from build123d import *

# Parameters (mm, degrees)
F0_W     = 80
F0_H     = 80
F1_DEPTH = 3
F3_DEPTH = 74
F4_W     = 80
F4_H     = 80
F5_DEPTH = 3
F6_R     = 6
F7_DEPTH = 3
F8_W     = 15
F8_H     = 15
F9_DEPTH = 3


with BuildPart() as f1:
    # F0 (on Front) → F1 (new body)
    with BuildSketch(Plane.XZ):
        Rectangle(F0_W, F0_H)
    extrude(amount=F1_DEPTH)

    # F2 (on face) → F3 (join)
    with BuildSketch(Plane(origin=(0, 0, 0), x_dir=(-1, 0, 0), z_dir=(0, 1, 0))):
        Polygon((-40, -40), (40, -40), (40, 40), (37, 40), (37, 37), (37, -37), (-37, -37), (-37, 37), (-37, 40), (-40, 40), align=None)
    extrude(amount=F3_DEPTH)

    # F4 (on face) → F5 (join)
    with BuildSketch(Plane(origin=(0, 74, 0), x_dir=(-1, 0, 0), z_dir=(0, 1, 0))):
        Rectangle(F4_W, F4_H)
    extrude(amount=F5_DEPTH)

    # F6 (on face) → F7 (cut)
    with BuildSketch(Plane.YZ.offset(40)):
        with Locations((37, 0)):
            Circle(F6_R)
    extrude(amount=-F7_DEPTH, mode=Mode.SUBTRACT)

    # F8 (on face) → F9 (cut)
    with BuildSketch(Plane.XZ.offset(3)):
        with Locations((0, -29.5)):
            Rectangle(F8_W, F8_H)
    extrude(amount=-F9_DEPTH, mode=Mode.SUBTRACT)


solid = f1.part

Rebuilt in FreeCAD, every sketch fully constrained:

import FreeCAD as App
import Part
import Sketcher
from FreeCAD import Vector
Q = App.Units.Quantity


def add_polygon(sketch, points):
    """Adds a closed chain of lines whose ends are joined by coincident constraints."""
    first, n = sketch.GeometryCount, len(points)
    for a, b in zip(points, points[1:] + points[:1]):
        sketch.addGeometry(Part.LineSegment(App.Vector(*a, 0), App.Vector(*b, 0)), False)
    for i in range(n):
        sketch.addConstraint(Sketcher.Constraint("Coincident", first + i, 2, first + (i + 1) % n, 1))

doc = App.newDocument("Part")
body = doc.addObject("PartDesign::Body", "Body")

sketch1 = body.newObject("Sketcher::SketchObject", "Sketch")
sketch1.AttachmentSupport = (doc.getObject("XZ_Plane"), [""])
sketch1.MapMode = "FlatFace"
add_polygon(sketch1, [(-40, 40), (-40, -40), (40, -40), (40, 40)])
sketch1.addConstraint(Sketcher.Constraint("Vertical", 0))
sketch1.addConstraint(Sketcher.Constraint("Horizontal", 1))
sketch1.addConstraint(Sketcher.Constraint("Vertical", 2))
sketch1.addConstraint(Sketcher.Constraint("Horizontal", 3))
sketch1.addConstraint(Sketcher.Constraint("Symmetric", 0, 2, 2, 2, -1, 1))
sketch1.addConstraint(Sketcher.Constraint("Equal", 3, 0))
sketch1.addConstraint(Sketcher.Constraint("DistanceX", 1, 1, 1, 2, Q("80 mm")))
pad1 = body.newObject("PartDesign::Pad", "Pad")
pad1.Profile = sketch1
pad1.Length = 3

sketch2 = body.newObject("Sketcher::SketchObject", "Sketch001")
sketch2.AttachmentSupport = (doc.getObject("XZ_Plane"), [""])
sketch2.MapMode = "FlatFace"
add_polygon(sketch2, [(40, -40), (-40, -40), (-40, 40), (-37, 40), (-37, -37), (37, -37), (37, 40), (40, 40)])
sketch2.addConstraint(Sketcher.Constraint("Horizontal", 0))
sketch2.addConstraint(Sketcher.Constraint("Vertical", 1))
sketch2.addConstraint(Sketcher.Constraint("Horizontal", 2))
sketch2.addConstraint(Sketcher.Constraint("Vertical", 3))
sketch2.addConstraint(Sketcher.Constraint("Horizontal", 4))
sketch2.addConstraint(Sketcher.Constraint("Vertical", 5))
sketch2.addConstraint(Sketcher.Constraint("Horizontal", 6))
sketch2.addConstraint(Sketcher.Constraint("Vertical", 7))
sketch2.addConstraint(Sketcher.Constraint("Symmetric", 0, 2, 6, 2, -1, 1))
sketch2.addConstraint(Sketcher.Constraint("Symmetric", 2, 2, 5, 2, -2))
sketch2.addConstraint(Sketcher.Constraint("Equal", 0, 1))
sketch2.addConstraint(Sketcher.Constraint("DistanceX", 0, 2, 0, 1, Q("80 mm")))
sketch2.addConstraint(Sketcher.Constraint("DistanceX", 2, 1, 2, 2, Q("3 mm")))
sketch2.addConstraint(Sketcher.Constraint("DistanceY", 3, 2, 3, 1, Q("77 mm")))
pad2 = body.newObject("PartDesign::Pad", "Pad001")
pad2.Profile = sketch2
pad2.Length = 74
pad2.Reversed = True

sketch3 = body.newObject("Sketcher::SketchObject", "Sketch002")
sketch3.AttachmentSupport = (doc.getObject("XZ_Plane"), [""])
sketch3.MapMode = "FlatFace"
sketch3.AttachmentOffset = App.Placement(Vector(0, 0, -74), App.Rotation())
add_polygon(sketch3, [(40, 40), (40, -40), (-40, -40), (-40, 40)])
sketch3.addConstraint(Sketcher.Constraint("Vertical", 0))
sketch3.addConstraint(Sketcher.Constraint("Horizontal", 1))
sketch3.addConstraint(Sketcher.Constraint("Vertical", 2))
sketch3.addConstraint(Sketcher.Constraint("Horizontal", 3))
sketch3.addConstraint(Sketcher.Constraint("Symmetric", 0, 2, 2, 2, -1, 1))
sketch3.addConstraint(Sketcher.Constraint("Equal", 3, 0))
sketch3.addConstraint(Sketcher.Constraint("DistanceX", 1, 2, 1, 1, Q("80 mm")))
pad3 = body.newObject("PartDesign::Pad", "Pad002")
pad3.Profile = sketch3
pad3.Length = 3
pad3.Reversed = True

sketch4 = body.newObject("Sketcher::SketchObject", "Sketch003")
sketch4.AttachmentSupport = (doc.getObject("YZ_Plane"), [""])
sketch4.MapMode = "FlatFace"
sketch4.AttachmentOffset = App.Placement(Vector(0, 0, 40), App.Rotation())
sketch4.addGeometry(Part.Circle(Vector(37, 0, 0), Vector(0, 0, 1), 6), False)
sketch4.addConstraint(Sketcher.Constraint("PointOnObject", 0, 3, -1))
sketch4.addConstraint(Sketcher.Constraint("Diameter", 0, Q("12 mm")))
sketch4.addConstraint(Sketcher.Constraint("DistanceX", -1, 1, 0, 3, Q("37 mm")))
pocket1 = body.newObject("PartDesign::Pocket", "Pocket")
pocket1.Profile = sketch4
pocket1.Length = 3

sketch5 = body.newObject("Sketcher::SketchObject", "Sketch004")
sketch5.AttachmentSupport = (doc.getObject("XZ_Plane"), [""])
sketch5.MapMode = "FlatFace"
sketch5.AttachmentOffset = App.Placement(Vector(0, 0, 3), App.Rotation())
add_polygon(sketch5, [(-8, -22), (-8, -37), (8, -37), (8, -22)])
sketch5.addConstraint(Sketcher.Constraint("Vertical", 0))
sketch5.addConstraint(Sketcher.Constraint("Horizontal", 1))
sketch5.addConstraint(Sketcher.Constraint("Vertical", 2))
sketch5.addConstraint(Sketcher.Constraint("Horizontal", 3))
sketch5.addConstraint(Sketcher.Constraint("Equal", 3, 0))
sketch5.addConstraint(Sketcher.Constraint("DistanceX", 1, 1, 1, 2, Q("15 mm")))
sketch5.addConstraint(Sketcher.Constraint("DistanceY", 0, 2, -1, 1, Q("37 mm")))
sketch5.addConstraint(Sketcher.Constraint("DistanceX", 0, 2, -1, 1, Q("7.5 mm")))
pocket2 = body.newObject("PartDesign::Pocket", "Pocket001")
pocket2.Profile = sketch5
pocket2.Length = 3

doc.recompute()
